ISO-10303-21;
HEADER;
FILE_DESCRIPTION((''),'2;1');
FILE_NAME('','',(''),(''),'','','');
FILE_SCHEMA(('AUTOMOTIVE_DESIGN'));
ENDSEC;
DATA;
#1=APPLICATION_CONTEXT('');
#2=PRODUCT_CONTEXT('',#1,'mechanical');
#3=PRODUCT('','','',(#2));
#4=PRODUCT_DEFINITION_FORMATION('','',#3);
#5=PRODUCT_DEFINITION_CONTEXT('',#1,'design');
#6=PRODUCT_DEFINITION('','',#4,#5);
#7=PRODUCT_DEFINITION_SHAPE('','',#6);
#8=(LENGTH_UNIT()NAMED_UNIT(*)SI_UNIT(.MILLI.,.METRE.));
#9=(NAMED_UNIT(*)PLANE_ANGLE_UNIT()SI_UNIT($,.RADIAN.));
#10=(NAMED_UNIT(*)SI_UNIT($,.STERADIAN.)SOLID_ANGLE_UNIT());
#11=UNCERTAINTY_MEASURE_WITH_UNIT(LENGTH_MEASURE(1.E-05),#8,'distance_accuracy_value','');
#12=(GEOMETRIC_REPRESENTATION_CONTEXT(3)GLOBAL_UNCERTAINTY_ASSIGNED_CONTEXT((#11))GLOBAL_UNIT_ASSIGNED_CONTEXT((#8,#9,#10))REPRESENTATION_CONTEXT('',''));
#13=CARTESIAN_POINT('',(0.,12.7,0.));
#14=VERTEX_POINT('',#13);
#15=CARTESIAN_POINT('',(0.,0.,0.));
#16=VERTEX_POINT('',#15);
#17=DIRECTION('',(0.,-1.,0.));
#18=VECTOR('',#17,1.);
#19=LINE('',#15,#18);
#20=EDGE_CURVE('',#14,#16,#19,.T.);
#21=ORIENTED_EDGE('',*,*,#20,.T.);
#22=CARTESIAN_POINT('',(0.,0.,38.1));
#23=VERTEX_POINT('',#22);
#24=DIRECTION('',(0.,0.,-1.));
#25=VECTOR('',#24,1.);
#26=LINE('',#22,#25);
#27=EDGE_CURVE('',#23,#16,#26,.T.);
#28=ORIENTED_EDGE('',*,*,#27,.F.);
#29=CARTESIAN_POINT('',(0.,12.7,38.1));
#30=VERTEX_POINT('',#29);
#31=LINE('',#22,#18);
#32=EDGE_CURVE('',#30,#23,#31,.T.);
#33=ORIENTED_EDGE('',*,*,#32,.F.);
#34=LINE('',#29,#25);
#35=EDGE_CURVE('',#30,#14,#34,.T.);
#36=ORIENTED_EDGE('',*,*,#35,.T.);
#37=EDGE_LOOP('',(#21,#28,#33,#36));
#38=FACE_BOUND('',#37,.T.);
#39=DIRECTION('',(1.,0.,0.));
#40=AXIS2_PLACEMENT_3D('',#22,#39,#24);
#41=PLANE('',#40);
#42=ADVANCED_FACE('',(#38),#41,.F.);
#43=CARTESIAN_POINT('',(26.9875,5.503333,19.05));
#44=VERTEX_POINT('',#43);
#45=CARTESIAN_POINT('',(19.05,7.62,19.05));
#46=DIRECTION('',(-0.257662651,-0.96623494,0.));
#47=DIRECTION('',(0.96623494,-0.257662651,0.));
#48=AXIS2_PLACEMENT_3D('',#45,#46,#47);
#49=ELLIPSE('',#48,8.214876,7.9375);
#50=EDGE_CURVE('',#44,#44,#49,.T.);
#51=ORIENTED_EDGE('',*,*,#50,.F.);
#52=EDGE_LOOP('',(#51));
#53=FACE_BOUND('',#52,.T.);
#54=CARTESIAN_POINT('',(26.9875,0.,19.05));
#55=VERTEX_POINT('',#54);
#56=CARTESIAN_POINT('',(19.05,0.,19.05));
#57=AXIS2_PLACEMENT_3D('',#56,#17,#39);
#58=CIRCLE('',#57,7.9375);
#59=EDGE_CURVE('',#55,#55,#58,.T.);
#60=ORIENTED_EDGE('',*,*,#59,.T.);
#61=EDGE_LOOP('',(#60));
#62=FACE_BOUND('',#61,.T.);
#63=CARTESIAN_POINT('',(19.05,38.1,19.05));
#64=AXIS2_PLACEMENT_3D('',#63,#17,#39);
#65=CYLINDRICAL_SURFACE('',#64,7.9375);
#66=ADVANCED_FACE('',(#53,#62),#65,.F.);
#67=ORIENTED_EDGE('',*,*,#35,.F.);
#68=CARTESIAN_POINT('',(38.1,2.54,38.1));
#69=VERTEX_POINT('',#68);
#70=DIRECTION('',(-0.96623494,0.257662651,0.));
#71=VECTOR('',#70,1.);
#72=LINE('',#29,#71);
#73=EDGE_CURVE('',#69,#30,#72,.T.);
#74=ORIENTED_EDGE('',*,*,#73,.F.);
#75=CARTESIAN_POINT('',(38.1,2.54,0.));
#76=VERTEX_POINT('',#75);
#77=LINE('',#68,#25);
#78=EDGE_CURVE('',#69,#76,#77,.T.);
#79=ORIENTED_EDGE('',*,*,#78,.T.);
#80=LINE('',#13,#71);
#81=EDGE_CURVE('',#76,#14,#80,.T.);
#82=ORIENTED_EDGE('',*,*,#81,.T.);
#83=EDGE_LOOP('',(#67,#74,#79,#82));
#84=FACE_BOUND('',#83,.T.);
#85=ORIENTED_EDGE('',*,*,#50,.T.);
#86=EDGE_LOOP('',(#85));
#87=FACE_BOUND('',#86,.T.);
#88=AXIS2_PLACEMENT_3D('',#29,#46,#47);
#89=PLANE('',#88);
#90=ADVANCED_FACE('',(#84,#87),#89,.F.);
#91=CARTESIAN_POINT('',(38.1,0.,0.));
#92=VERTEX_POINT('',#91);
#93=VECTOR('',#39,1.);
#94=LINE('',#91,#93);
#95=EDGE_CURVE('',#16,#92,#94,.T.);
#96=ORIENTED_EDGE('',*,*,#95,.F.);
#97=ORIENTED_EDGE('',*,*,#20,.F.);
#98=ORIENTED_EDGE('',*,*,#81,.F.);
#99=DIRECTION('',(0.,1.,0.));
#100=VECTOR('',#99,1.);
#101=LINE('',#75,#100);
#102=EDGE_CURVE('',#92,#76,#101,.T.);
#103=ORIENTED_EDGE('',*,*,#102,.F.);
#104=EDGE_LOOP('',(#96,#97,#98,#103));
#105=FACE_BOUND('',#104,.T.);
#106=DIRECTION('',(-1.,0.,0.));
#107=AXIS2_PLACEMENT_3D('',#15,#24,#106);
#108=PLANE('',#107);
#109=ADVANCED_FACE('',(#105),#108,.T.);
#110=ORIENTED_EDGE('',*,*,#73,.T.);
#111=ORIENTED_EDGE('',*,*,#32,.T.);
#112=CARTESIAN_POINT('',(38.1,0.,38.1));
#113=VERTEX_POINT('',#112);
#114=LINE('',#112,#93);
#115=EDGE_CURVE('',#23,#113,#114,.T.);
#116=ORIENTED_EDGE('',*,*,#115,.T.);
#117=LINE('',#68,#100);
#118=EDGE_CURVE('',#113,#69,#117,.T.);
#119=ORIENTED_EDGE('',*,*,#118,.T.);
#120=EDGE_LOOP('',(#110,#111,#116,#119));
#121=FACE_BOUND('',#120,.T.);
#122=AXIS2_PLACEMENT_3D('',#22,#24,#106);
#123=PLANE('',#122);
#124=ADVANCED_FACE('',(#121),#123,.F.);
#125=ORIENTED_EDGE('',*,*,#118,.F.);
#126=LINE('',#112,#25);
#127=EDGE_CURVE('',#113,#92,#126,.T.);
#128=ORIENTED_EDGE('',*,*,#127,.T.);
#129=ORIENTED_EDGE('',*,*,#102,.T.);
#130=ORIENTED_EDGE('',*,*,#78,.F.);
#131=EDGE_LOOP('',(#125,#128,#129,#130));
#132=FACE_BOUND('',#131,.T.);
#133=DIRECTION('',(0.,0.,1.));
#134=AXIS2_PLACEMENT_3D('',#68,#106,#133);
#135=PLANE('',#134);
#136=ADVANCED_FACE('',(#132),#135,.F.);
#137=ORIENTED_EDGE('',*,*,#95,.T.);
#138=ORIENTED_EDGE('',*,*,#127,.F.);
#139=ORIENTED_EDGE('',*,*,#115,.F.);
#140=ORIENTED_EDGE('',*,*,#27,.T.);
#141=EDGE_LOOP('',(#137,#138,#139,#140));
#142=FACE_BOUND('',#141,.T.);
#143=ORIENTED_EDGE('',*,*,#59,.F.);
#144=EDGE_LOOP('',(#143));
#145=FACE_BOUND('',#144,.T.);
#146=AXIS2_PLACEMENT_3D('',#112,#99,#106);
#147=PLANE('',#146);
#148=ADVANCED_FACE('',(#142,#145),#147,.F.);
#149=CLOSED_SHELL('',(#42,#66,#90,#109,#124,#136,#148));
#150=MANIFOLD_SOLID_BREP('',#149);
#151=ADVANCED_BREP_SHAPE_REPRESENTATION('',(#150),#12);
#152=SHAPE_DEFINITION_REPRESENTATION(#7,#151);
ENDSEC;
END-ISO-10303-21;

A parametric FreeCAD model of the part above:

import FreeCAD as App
import Part
import Sketcher

V = App.Vector
Q = App.Units.Quantity


def add_polygon(sketch, points):
    """Adds a closed chain of lines whose ends are joined by coincident constraints."""
    first, n = sketch.GeometryCount, len(points)
    for a, b in zip(points, points[1:] + points[:1]):
        sketch.addGeometry(Part.LineSegment(App.Vector(*a, 0), App.Vector(*b, 0)), False)
    for i in range(n):
        sketch.addConstraint(Sketcher.Constraint("Coincident", first + i, 2, first + (i + 1) % n, 1))

doc = App.newDocument("Part")
body = doc.addObject("PartDesign::Body", "Body")

# Sketch on XY plane
sketch1 = body.newObject("Sketcher::SketchObject", "Sketch")
sketch1.AttachmentSupport = (doc.getObject("XY_Plane"), [""])
sketch1.MapMode = "FlatFace"
add_polygon(sketch1, [(0, 12.7), (0, 0), (38.1, 0), (38.1, 2.5)])  # lines 0-3
sketch1.addConstraint(Sketcher.Constraint("Vertical", 0))
sketch1.addConstraint(Sketcher.Constraint("Horizontal", 1))
sketch1.addConstraint(Sketcher.Constraint("Vertical", 2))
sketch1.addConstraint(Sketcher.Constraint("Coincident", 0, 2, -1, 1))
sketch1.addConstraint(Sketcher.Constraint("DistanceX", 1, 1, 1, 2, Q("1.5 in")))
sketch1.addConstraint(Sketcher.Constraint("DistanceY", 0, 2, 0, 1, Q("0.5 in")))
sketch1.addConstraint(Sketcher.Constraint("DistanceY", 2, 1, 2, 2, Q("0.1 in")))
pad1 = body.newObject("PartDesign::Pad", "Pad")
pad1.Profile = sketch1
pad1.Length = Q("1.5 in")

# Sketch on XZ plane
sketch2 = body.newObject("Sketcher::SketchObject", "Sketch001")
sketch2.AttachmentSupport = (doc.getObject("XZ_Plane"), [""])
sketch2.MapMode = "FlatFace"
sketch2.addGeometry(Part.Circle(V(19, 19, 0), V(0, 0, 1), 8), False)
sketch2.addConstraint(Sketcher.Constraint("Diameter", 0, Q("0.625 in")))
sketch2.addConstraint(Sketcher.Constraint("DistanceX", -1, 1, 0, 3, Q("0.75 in")))
sketch2.addConstraint(Sketcher.Constraint("DistanceY", -1, 1, 0, 3, Q("0.75 in")))
pocket1 = body.newObject("PartDesign::Pocket", "Pocket")
pocket1.Profile = sketch2
pocket1.Length = Q("1.5 in")

doc.recompute()
